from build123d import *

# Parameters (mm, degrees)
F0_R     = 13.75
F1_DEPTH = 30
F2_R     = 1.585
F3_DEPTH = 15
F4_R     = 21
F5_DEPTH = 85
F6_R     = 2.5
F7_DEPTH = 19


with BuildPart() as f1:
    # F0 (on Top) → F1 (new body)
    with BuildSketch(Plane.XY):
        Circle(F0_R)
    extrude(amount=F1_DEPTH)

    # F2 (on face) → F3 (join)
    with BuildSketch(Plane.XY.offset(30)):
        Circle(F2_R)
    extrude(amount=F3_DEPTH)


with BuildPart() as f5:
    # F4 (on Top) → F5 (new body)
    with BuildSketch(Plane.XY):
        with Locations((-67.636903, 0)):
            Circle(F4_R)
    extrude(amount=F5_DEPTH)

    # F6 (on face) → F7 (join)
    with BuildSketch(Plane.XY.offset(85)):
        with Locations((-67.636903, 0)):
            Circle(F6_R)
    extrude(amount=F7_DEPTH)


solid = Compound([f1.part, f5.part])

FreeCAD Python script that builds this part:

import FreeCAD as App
import Part
import Sketcher
from FreeCAD import Vector

doc = App.newDocument("Part")
body = doc.addObject("PartDesign::Body", "Body")

# Sketch on XY plane
sketch1 = doc.addObject("Sketcher::SketchObject", "Sketch")
body.addObject(sketch1)
sketch1.AttachmentSupport = (doc.XY_Plane, [""])
sketch1.MapMode = "FlatFace"
sketch1.addGeometry(Part.Circle(Vector(0, 0, 0), Vector(0, 0, 1), 14), False)
sketch1.addConstraint([
    Sketcher.Constraint("Coincident", 0, 3, -1, 1),
    Sketcher.Constraint("Diameter", 0, 27.5),
])
pad1 = doc.addObject("PartDesign::Pad", "Pad")
body.addObject(pad1)
pad1.Profile = sketch1
pad1.Length = 30

# Sketch on XY plane
sketch2 = doc.addObject("Sketcher::SketchObject", "Sketch001")
body.addObject(sketch2)
sketch2.AttachmentSupport = (doc.XY_Plane, [""])
sketch2.MapMode = "FlatFace"
sketch2.AttachmentOffset = App.Placement(Vector(0, 0, 30), App.Rotation())
sketch2.addGeometry(Part.Circle(Vector(0, 0, 0), Vector(0, 0, 1), 1.6), False)
sketch2.addConstraint([
    Sketcher.Constraint("Coincident", 0, 3, -1, 1),
    Sketcher.Constraint("Diameter", 0, 3.17),
])
pad2 = doc.addObject("PartDesign::Pad", "Pad001")
body.addObject(pad2)
pad2.Profile = sketch2
pad2.Length = 15
body2 = doc.addObject("PartDesign::Body", "Body001")

# Sketch on XY plane
sketch3 = doc.addObject("Sketcher::SketchObject", "Sketch002")
body2.addObject(sketch3)
sketch3.AttachmentSupport = (doc.getObject("XY_Plane001"), [""])
sketch3.MapMode = "FlatFace"
sketch3.addGeometry(Part.Circle(Vector(-68, 0, 0), Vector(0, 0, 1), 21), False)
sketch3.addConstraint([
    Sketcher.Constraint("PointOnObject", 0, 3, -1),
    Sketcher.Constraint("Diameter", 0, 42.0),
    Sketcher.Constraint("DistanceX", 0, 3, -1, 1, 67.636903),
])
pad3 = doc.addObject("PartDesign::Pad", "Pad002")
body2.addObject(pad3)
pad3.Profile = sketch3
pad3.Length = 85

# Sketch on XY plane
sketch4 = doc.addObject("Sketcher::SketchObject", "Sketch003")
body2.addObject(sketch4)
sketch4.AttachmentSupport = (doc.getObject("XY_Plane001"), [""])
sketch4.MapMode = "FlatFace"
sketch4.AttachmentOffset = App.Placement(Vector(0, 0, 85), App.Rotation())
sketch4.addGeometry(Part.Circle(Vector(-67.6, 0, 0), Vector(0, 0, 1), 2.5), False)
sketch4.addConstraint([
    Sketcher.Constraint("PointOnObject", 0, 3, -1),
    Sketcher.Constraint("Diameter", 0, 5.0),
    Sketcher.Constraint("DistanceX", 0, 3, -1, 1, 67.636903),
])
pad4 = doc.addObject("PartDesign::Pad", "Pad003")
body2.addObject(pad4)
pad4.Profile = sketch4
pad4.Length = 19

doc.recompute()
